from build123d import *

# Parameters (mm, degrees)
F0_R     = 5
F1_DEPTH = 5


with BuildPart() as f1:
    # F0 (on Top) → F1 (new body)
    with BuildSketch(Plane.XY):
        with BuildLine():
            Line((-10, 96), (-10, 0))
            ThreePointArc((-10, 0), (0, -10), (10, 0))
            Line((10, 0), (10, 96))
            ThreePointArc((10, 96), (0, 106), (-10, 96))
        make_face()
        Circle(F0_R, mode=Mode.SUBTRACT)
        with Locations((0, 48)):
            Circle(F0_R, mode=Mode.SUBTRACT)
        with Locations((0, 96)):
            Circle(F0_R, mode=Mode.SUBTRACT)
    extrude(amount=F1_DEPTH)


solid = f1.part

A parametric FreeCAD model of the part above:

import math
import FreeCAD as App
import Part
import Sketcher

doc = App.newDocument("Part")
body = doc.addObject("PartDesign::Body", "Body")

# Sketch on XY plane
sketch1 = body.newObject("Sketcher::SketchObject", "Sketch")
sketch1.AttachmentSupport = (doc.getObject("XY_Plane"), [""])
sketch1.MapMode = "FlatFace"
sketch1.addGeometry(Part.LineSegment(App.Vector(-10, 96, 0), App.Vector(-10, 0, 0)), False)
sketch1.addGeometry(Part.ArcOfCircle(Part.Circle(App.Vector(0, 0, 0), App.Vector(0, 0, 1), 10), math.radians(180), math.radians(360)), False)
sketch1.addGeometry(Part.LineSegment(App.Vector(10, 0, 0), App.Vector(10, 96, 0)), False)
sketch1.addGeometry(Part.ArcOfCircle(Part.Circle(App.Vector(0, 96, 0), App.Vector(0, 0, 1), 10), math.radians(0), math.radians(180)), False)
sketch1.addGeometry(Part.Circle(App.Vector(0, 0, 0), App.Vector(0, 0, 1), 5), False)
sketch1.addGeometry(Part.Circle(App.Vector(0, 48, 0), App.Vector(0, 0, 1), 5), False)
sketch1.addGeometry(Part.Circle(App.Vector(0, 96, 0), App.Vector(0, 0, 1), 5), False)
sketch1.addConstraint(Sketcher.Constraint("Tangent", 0, 2, 1, 1))
sketch1.addConstraint(Sketcher.Constraint("Tangent", 1, 2, 2, 1))
sketch1.addConstraint(Sketcher.Constraint("Tangent", 2, 2, 3, 1))
sketch1.addConstraint(Sketcher.Constraint("Tangent", 3, 2, 0, 1))
sketch1.addConstraint(Sketcher.Constraint("Vertical", 0))
sketch1.addConstraint(Sketcher.Constraint("Vertical", 2))
sketch1.addConstraint(Sketcher.Constraint("Coincident", 1, 3, -1, 1))
sketch1.addConstraint(Sketcher.Constraint("Coincident", 4, 3, -1, 1))
sketch1.addConstraint(Sketcher.Constraint("Coincident", 6, 3, 3, 3))
sketch1.addConstraint(Sketcher.Constraint("Equal", 4, 5))
sketch1.addConstraint(Sketcher.Constraint("Equal", 5, 6))
sketch1.addConstraint(Sketcher.Constraint("PointOnObject", 5, 3, -2))
sketch1.addConstraint(Sketcher.Constraint("Diameter", 4, 10.0))
sketch1.addConstraint(Sketcher.Constraint("Radius", 1, 10.0))
sketch1.addConstraint(Sketcher.Constraint("DistanceY", 0, 2, 0, 1, 96.0))
sketch1.addConstraint(Sketcher.Constraint("DistanceY", -1, 1, 5, 3, 48.0))
pad1 = body.newObject("PartDesign::Pad", "Pad")
pad1.Profile = sketch1
pad1.Length = 5

doc.recompute()
